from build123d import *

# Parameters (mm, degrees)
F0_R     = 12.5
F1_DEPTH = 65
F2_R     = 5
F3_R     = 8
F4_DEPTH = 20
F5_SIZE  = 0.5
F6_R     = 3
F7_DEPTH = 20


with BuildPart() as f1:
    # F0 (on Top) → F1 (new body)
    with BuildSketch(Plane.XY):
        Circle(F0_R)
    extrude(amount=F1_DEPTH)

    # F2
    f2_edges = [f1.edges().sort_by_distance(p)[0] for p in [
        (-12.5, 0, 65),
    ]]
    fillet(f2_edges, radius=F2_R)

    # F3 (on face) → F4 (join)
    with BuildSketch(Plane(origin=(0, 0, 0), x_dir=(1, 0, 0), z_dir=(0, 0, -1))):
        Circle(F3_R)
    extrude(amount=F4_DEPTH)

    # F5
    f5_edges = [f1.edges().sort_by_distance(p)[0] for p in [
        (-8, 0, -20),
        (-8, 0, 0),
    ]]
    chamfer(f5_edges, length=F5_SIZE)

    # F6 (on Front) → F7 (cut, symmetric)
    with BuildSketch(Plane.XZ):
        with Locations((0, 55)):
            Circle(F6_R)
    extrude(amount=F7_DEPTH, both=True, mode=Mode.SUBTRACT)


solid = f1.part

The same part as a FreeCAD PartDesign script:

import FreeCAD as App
import Part
import Sketcher
from FreeCAD import Vector
Q = App.Units.Quantity


def edges_at(feature, points):
    """Names of the edges that pass closest to the given points."""
    edges = feature.Shape.Edges
    near = lambda p: min(range(len(edges)), key=lambda i: edges[i].distToShape(Part.Vertex(*p))[0])
    return sorted({f"Edge{near(p) + 1}" for p in points})

doc = App.newDocument("Part")
body = doc.addObject("PartDesign::Body", "Body")

sketch1 = doc.addObject("Sketcher::SketchObject", "Sketch")
body.addObject(sketch1)
sketch1.AttachmentSupport = (doc.XY_Plane, [""])
sketch1.MapMode = "FlatFace"
sketch1.addGeometry(Part.Circle(Vector(0, 0, 0), Vector(0, 0, 1), 12), False)
sketch1.addConstraint([
    Sketcher.Constraint("Coincident", 0, 3, -1, 1),
    Sketcher.Constraint("Diameter", 0, Q("25 mm")),
])
pad1 = doc.addObject("PartDesign::Pad", "Pad")
body.addObject(pad1)
pad1.Profile = sketch1
pad1.Length = 65
doc.recompute()

fillet = doc.addObject("PartDesign::Fillet", "Fillet")
body.addObject(fillet)
fillet.Base = (pad1, edges_at(pad1, [(-12.5, 0, 65)]))
fillet.Radius = 5

sketch2 = doc.addObject("Sketcher::SketchObject", "Sketch001")
body.addObject(sketch2)
sketch2.AttachmentSupport = (doc.XY_Plane, [""])
sketch2.MapMode = "FlatFace"
sketch2.addGeometry(Part.Circle(Vector(0, 0, 0), Vector(0, 0, 1), 8), False)
sketch2.addConstraint([
    Sketcher.Constraint("Coincident", 0, 3, -1, 1),
    Sketcher.Constraint("Diameter", 0, Q("16 mm")),
])
pad2 = doc.addObject("PartDesign::Pad", "Pad001")
body.addObject(pad2)
pad2.Profile = sketch2
pad2.Length = 20
pad2.Reversed = True
doc.recompute()

chamfer = doc.addObject("PartDesign::Chamfer", "Chamfer")
body.addObject(chamfer)
chamfer.Base = (pad2, edges_at(pad2, [(-8, 0, -20), (-8, 0, 0)]))
chamfer.Size = 0.5

sketch3 = doc.addObject("Sketcher::SketchObject", "Sketch002")
body.addObject(sketch3)
sketch3.AttachmentSupport = (doc.XZ_Plane, [""])
sketch3.MapMode = "FlatFace"
sketch3.addGeometry(Part.Circle(Vector(0, 55, 0), Vector(0, 0, 1), 3), False)
sketch3.addConstraint([
    Sketcher.Constraint("PointOnObject", 0, 3, -2),
    Sketcher.Constraint("Diameter", 0, Q("6 mm")),
    Sketcher.Constraint("DistanceY", -1, 1, 0, 3, Q("55 mm")),
])
pocket1 = doc.addObject("PartDesign::Pocket", "Pocket")
body.addObject(pocket1)
pocket1.Profile = sketch3
pocket1.Length = 40
pocket1.Midplane = True

doc.recompute()
